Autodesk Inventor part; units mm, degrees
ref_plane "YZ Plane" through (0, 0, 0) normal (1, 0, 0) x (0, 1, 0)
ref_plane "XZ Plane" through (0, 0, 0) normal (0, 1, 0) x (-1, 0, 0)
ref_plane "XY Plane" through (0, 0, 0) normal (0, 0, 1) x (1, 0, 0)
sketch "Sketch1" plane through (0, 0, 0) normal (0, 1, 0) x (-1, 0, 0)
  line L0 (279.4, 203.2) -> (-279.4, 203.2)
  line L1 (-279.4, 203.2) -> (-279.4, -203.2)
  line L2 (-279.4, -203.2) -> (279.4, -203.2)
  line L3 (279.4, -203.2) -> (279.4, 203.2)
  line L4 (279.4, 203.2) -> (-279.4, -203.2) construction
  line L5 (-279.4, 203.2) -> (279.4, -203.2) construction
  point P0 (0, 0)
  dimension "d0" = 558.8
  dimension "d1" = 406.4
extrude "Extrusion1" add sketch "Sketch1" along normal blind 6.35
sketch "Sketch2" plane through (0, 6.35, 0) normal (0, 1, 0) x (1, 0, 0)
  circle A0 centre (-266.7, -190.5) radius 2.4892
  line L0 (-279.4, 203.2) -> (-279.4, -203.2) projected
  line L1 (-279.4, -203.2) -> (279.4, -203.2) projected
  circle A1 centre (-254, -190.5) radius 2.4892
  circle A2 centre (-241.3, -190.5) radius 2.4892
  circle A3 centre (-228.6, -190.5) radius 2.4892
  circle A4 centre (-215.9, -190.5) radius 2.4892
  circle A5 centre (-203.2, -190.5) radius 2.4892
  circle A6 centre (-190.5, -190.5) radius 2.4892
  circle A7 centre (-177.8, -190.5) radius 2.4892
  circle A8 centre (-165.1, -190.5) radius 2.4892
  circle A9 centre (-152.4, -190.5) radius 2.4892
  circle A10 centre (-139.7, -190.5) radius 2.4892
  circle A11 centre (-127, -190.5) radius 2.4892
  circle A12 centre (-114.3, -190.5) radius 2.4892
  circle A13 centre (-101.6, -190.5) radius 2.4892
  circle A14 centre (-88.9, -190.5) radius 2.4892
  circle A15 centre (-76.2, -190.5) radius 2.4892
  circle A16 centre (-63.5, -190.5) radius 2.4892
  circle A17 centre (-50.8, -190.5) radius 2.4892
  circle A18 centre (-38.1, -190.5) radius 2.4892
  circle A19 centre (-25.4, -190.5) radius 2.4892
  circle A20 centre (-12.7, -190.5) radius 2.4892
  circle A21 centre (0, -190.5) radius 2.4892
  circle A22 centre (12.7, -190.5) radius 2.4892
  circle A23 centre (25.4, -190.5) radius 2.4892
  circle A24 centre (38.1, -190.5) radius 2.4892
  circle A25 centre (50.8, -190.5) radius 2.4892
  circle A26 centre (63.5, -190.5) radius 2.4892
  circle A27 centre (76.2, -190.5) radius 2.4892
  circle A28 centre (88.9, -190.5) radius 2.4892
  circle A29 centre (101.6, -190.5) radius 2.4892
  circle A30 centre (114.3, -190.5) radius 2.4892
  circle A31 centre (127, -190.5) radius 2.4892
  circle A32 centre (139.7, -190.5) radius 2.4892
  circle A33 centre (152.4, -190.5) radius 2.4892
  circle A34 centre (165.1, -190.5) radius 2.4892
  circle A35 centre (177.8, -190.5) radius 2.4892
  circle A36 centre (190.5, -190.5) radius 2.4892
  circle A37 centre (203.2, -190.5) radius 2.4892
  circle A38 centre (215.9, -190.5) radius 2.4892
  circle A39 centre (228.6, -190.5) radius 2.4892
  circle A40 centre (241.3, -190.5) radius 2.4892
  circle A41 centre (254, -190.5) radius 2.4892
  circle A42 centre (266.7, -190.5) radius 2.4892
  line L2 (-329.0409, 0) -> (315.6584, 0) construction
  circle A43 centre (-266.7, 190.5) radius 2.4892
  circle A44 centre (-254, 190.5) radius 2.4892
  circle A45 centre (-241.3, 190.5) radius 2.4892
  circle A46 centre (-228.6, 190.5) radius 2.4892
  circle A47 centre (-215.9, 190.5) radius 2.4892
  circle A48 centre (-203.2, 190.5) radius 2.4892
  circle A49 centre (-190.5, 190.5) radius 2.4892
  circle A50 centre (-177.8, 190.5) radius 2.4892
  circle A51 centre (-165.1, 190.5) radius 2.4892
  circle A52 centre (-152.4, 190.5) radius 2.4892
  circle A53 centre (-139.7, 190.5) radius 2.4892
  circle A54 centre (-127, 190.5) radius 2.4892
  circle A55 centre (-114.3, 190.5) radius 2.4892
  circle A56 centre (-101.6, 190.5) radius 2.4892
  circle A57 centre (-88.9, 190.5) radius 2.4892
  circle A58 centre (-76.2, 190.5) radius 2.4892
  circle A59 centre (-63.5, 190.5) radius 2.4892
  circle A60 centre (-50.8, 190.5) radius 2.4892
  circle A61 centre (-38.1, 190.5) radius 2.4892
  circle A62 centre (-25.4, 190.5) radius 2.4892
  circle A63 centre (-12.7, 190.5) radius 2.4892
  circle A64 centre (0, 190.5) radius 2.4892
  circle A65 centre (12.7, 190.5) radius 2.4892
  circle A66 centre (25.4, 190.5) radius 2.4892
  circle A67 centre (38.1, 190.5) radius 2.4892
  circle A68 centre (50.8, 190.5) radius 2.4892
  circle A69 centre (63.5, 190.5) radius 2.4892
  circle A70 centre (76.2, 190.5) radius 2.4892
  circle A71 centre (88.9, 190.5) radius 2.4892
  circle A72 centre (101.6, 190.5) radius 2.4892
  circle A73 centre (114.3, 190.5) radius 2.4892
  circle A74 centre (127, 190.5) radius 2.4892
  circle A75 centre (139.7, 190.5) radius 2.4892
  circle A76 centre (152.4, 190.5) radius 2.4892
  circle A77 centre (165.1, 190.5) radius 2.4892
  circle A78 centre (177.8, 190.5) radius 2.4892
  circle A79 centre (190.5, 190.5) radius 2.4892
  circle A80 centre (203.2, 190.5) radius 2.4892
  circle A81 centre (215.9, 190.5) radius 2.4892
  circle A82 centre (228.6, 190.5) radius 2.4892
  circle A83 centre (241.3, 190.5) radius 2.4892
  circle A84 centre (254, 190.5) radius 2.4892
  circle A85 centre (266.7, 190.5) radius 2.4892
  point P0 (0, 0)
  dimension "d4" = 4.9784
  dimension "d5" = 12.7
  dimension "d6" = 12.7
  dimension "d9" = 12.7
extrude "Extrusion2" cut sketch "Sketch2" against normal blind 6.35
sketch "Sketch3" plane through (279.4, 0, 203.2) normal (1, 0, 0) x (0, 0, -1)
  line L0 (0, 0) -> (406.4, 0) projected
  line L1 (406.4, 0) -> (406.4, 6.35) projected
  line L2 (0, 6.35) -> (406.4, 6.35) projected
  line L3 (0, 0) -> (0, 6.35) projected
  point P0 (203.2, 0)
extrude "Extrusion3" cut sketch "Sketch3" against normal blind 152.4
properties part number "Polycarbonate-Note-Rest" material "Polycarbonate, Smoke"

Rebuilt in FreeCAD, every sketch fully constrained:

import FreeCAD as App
import Part
import Sketcher
Q = App.Units.Quantity


def add_polygon(sketch, points):
    """Adds a closed chain of lines whose ends are joined by coincident constraints."""
    first, n = sketch.GeometryCount, len(points)
    for a, b in zip(points, points[1:] + points[:1]):
        sketch.addGeometry(Part.LineSegment(App.Vector(*a, 0), App.Vector(*b, 0)), False)
    for i in range(n):
        sketch.addConstraint(Sketcher.Constraint("Coincident", first + i, 2, first + (i + 1) % n, 1))

doc = App.newDocument("Part")
body = doc.addObject("PartDesign::Body", "Body")

# Sketch on XZ plane
sketch1 = doc.addObject("Sketcher::SketchObject", "Sketch")
body.addObject(sketch1)
sketch1.AttachmentSupport = (doc.XZ_Plane, [""])
sketch1.MapMode = "FlatFace"
add_polygon(sketch1, [(-279.4, -203.2), (-279.4, 203.2), (279.4, 203.2), (279.4, -203.2)])  # lines 0-3
sketch1.addConstraint([
    Sketcher.Constraint("Vertical", 0),
    Sketcher.Constraint("Horizontal", 1),
    Sketcher.Constraint("Vertical", 2),
    Sketcher.Constraint("Horizontal", 3),
    Sketcher.Constraint("Symmetric", 0, 2, 2, 2, -1, 1),
    Sketcher.Constraint("DistanceX", 1, 1, 1, 2, Q("22 in")),
    Sketcher.Constraint("DistanceY", 0, 1, 0, 2, Q("16 in")),
])
pad1 = doc.addObject("PartDesign::Pad", "Pad")
body.addObject(pad1)
pad1.Profile = sketch1
pad1.Length = Q("0.25 in")
pad1.Reversed = True

# Sketch on XZ plane
sketch2 = doc.addObject("Sketcher::SketchObject", "Sketch001")
body.addObject(sketch2)
sketch2.AttachmentSupport = (doc.XZ_Plane, [""])
sketch2.MapMode = "FlatFace"
sketch2.AttachmentOffset = App.Placement(App.Vector(0, 0, -0.25 * 25.4), App.Rotation())
sketch2.addGeometry([
    Part.Circle(App.Vector(-266.7, 190.5, 0), App.Vector(0, 0, 1), 2.4892),  # 0
    Part.Circle(App.Vector(-254, 190.5, 0), App.Vector(0, 0, 1), 2.4892),  # 1
    Part.Circle(App.Vector(-241.3, 190.5, 0), App.Vector(0, 0, 1), 2.4892),  # 2
    Part.Circle(App.Vector(-228.6, 190.5, 0), App.Vector(0, 0, 1), 2.4892),  # 3
    Part.Circle(App.Vector(-215.9, 190.5, 0), App.Vector(0, 0, 1), 2.4892),  # 4
    Part.Circle(App.Vector(-203.2, 190.5, 0), App.Vector(0, 0, 1), 2.4892),  # 5
    Part.Circle(App.Vector(-190.5, 190.5, 0), App.Vector(0, 0, 1), 2.4892),  # 6
    Part.Circle(App.Vector(-177.8, 190.5, 0), App.Vector(0, 0, 1), 2.4892),  # 7
    Part.Circle(App.Vector(-165.1, 190.5, 0), App.Vector(0, 0, 1), 2.4892),  # 8
    Part.Circle(App.Vector(-152.4, 190.5, 0), App.Vector(0, 0, 1), 2.4892),  # 9
    Part.Circle(App.Vector(-139.7, 190.5, 0), App.Vector(0, 0, 1), 2.4892),  # 10
    Part.Circle(App.Vector(-127, 190.5, 0), App.Vector(0, 0, 1), 2.4892),  # 11
    Part.Circle(App.Vector(-114.3, 190.5, 0), App.Vector(0, 0, 1), 2.4892),  # 12
    Part.Circle(App.Vector(-101.6, 190.5, 0), App.Vector(0, 0, 1), 2.4892),  # 13
    Part.Circle(App.Vector(-88.9, 190.5, 0), App.Vector(0, 0, 1), 2.4892),  # 14
    Part.Circle(App.Vector(-76.2, 190.5, 0), App.Vector(0, 0, 1), 2.4892),  # 15
    Part.Circle(App.Vector(-63.5, 190.5, 0), App.Vector(0, 0, 1), 2.4892),  # 16
    Part.Circle(App.Vector(-50.8, 190.5, 0), App.Vector(0, 0, 1), 2.4892),  # 17
    Part.Circle(App.Vector(-38.1, 190.5, 0), App.Vector(0, 0, 1), 2.4892),  # 18
    Part.Circle(App.Vector(-25.4, 190.5, 0), App.Vector(0, 0, 1), 2.4892),  # 19
    Part.Circle(App.Vector(-12.7, 190.5, 0), App.Vector(0, 0, 1), 2.4892),  # 20
    Part.Circle(App.Vector(0, 190.5, 0), App.Vector(0, 0, 1), 2.4892),  # 21
    Part.Circle(App.Vector(12.7, 190.5, 0), App.Vector(0, 0, 1), 2.4892),  # 22
    Part.Circle(App.Vector(25.4, 190.5, 0), App.Vector(0, 0, 1), 2.4892),  # 23
    Part.Circle(App.Vector(38.1, 190.5, 0), App.Vector(0, 0, 1), 2.4892),  # 24
    Part.Circle(App.Vector(50.8, 190.5, 0), App.Vector(0, 0, 1), 2.4892),  # 25
    Part.Circle(App.Vector(63.5, 190.5, 0), App.Vector(0, 0, 1), 2.4892),  # 26
    Part.Circle(App.Vector(76.2, 190.5, 0), App.Vector(0, 0, 1), 2.4892),  # 27
    Part.Circle(App.Vector(88.9, 190.5, 0), App.Vector(0, 0, 1), 2.4892),  # 28
    Part.Circle(App.Vector(101.6, 190.5, 0), App.Vector(0, 0, 1), 2.4892),  # 29
    Part.Circle(App.Vector(114.3, 190.5, 0), App.Vector(0, 0, 1), 2.4892),  # 30
    Part.Circle(App.Vector(127, 190.5, 0), App.Vector(0, 0, 1), 2.4892),  # 31
    Part.Circle(App.Vector(139.7, 190.5, 0), App.Vector(0, 0, 1), 2.4892),  # 32
    Part.Circle(App.Vector(152.4, 190.5, 0), App.Vector(0, 0, 1), 2.4892),  # 33
    Part.Circle(App.Vector(165.1, 190.5, 0), App.Vector(0, 0, 1), 2.4892),  # 34
    Part.Circle(App.Vector(177.8, 190.5, 0), App.Vector(0, 0, 1), 2.4892),  # 35
    Part.Circle(App.Vector(190.5, 190.5, 0), App.Vector(0, 0, 1), 2.4892),  # 36
    Part.Circle(App.Vector(203.2, 190.5, 0), App.Vector(0, 0, 1), 2.4892),  # 37
    Part.Circle(App.Vector(215.9, 190.5, 0), App.Vector(0, 0, 1), 2.4892),  # 38
    Part.Circle(App.Vector(228.6, 190.5, 0), App.Vector(0, 0, 1), 2.4892),  # 39
    Part.Circle(App.Vector(241.3, 190.5, 0), App.Vector(0, 0, 1), 2.4892),  # 40
    Part.Circle(App.Vector(254, 190.5, 0), App.Vector(0, 0, 1), 2.4892),  # 41
    Part.Circle(App.Vector(266.7, 190.5, 0), App.Vector(0, 0, 1), 2.4892),  # 42
    Part.Circle(App.Vector(-266.7, -190.5, 0), App.Vector(0, 0, 1), 2.4892),  # 43
    Part.Circle(App.Vector(-254, -190.5, 0), App.Vector(0, 0, 1), 2.4892),  # 44
    Part.Circle(App.Vector(-241.3, -190.5, 0), App.Vector(0, 0, 1), 2.4892),  # 45
    Part.Circle(App.Vector(-228.6, -190.5, 0), App.Vector(0, 0, 1), 2.4892),  # 46
    Part.Circle(App.Vector(-215.9, -190.5, 0), App.Vector(0, 0, 1), 2.4892),  # 47
    Part.Circle(App.Vector(-203.2, -190.5, 0), App.Vector(0, 0, 1), 2.4892),  # 48
    Part.Circle(App.Vector(-190.5, -190.5, 0), App.Vector(0, 0, 1), 2.4892),  # 49
    Part.Circle(App.Vector(-177.8, -190.5, 0), App.Vector(0, 0, 1), 2.4892),  # 50
    Part.Circle(App.Vector(-165.1, -190.5, 0), App.Vector(0, 0, 1), 2.4892),  # 51
    Part.Circle(App.Vector(-152.4, -190.5, 0), App.Vector(0, 0, 1), 2.4892),  # 52
    Part.Circle(App.Vector(-139.7, -190.5, 0), App.Vector(0, 0, 1), 2.4892),  # 53
    Part.Circle(App.Vector(-127, -190.5, 0), App.Vector(0, 0, 1), 2.4892),  # 54
    Part.Circle(App.Vector(-114.3, -190.5, 0), App.Vector(0, 0, 1), 2.4892),  # 55
    Part.Circle(App.Vector(-101.6, -190.5, 0), App.Vector(0, 0, 1), 2.4892),  # 56
    Part.Circle(App.Vector(-88.9, -190.5, 0), App.Vector(0, 0, 1), 2.4892),  # 57
    Part.Circle(App.Vector(-76.2, -190.5, 0), App.Vector(0, 0, 1), 2.4892),  # 58
    Part.Circle(App.Vector(-63.5, -190.5, 0), App.Vector(0, 0, 1), 2.4892),  # 59
    Part.Circle(App.Vector(-50.8, -190.5, 0), App.Vector(0, 0, 1), 2.4892),  # 60
    Part.Circle(App.Vector(-38.1, -190.5, 0), App.Vector(0, 0, 1), 2.4892),  # 61
    Part.Circle(App.Vector(-25.4, -190.5, 0), App.Vector(0, 0, 1), 2.4892),  # 62
    Part.Circle(App.Vector(-12.7, -190.5, 0), App.Vector(0, 0, 1), 2.4892),  # 63
    Part.Circle(App.Vector(0, -190.5, 0), App.Vector(0, 0, 1), 2.4892),  # 64
    Part.Circle(App.Vector(12.7, -190.5, 0), App.Vector(0, 0, 1), 2.4892),  # 65
    Part.Circle(App.Vector(25.4, -190.5, 0), App.Vector(0, 0, 1), 2.4892),  # 66
    Part.Circle(App.Vector(38.1, -190.5, 0), App.Vector(0, 0, 1), 2.4892),  # 67
    Part.Circle(App.Vector(50.8, -190.5, 0), App.Vector(0, 0, 1), 2.4892),  # 68
    Part.Circle(App.Vector(63.5, -190.5, 0), App.Vector(0, 0, 1), 2.4892),  # 69
    Part.Circle(App.Vector(76.2, -190.5, 0), App.Vector(0, 0, 1), 2.4892),  # 70
    Part.Circle(App.Vector(88.9, -190.5, 0), App.Vector(0, 0, 1), 2.4892),  # 71
    Part.Circle(App.Vector(101.6, -190.5, 0), App.Vector(0, 0, 1), 2.4892),  # 72
    Part.Circle(App.Vector(114.3, -190.5, 0), App.Vector(0, 0, 1), 2.4892),  # 73
    Part.Circle(App.Vector(127, -190.5, 0), App.Vector(0, 0, 1), 2.4892),  # 74
    Part.Circle(App.Vector(139.7, -190.5, 0), App.Vector(0, 0, 1), 2.4892),  # 75
    Part.Circle(App.Vector(152.4, -190.5, 0), App.Vector(0, 0, 1), 2.4892),  # 76
    Part.Circle(App.Vector(165.1, -190.5, 0), App.Vector(0, 0, 1), 2.4892),  # 77
    Part.Circle(App.Vector(177.8, -190.5, 0), App.Vector(0, 0, 1), 2.4892),  # 78
    Part.Circle(App.Vector(190.5, -190.5, 0), App.Vector(0, 0, 1), 2.4892),  # 79
    Part.Circle(App.Vector(203.2, -190.5, 0), App.Vector(0, 0, 1), 2.4892),  # 80
    Part.Circle(App.Vector(215.9, -190.5, 0), App.Vector(0, 0, 1), 2.4892),  # 81
    Part.Circle(App.Vector(228.6, -190.5, 0), App.Vector(0, 0, 1), 2.4892),  # 82
    Part.Circle(App.Vector(241.3, -190.5, 0), App.Vector(0, 0, 1), 2.4892),  # 83
    Part.Circle(App.Vector(254, -190.5, 0), App.Vector(0, 0, 1), 2.4892),  # 84
    Part.Circle(App.Vector(266.7, -190.5, 0), App.Vector(0, 0, 1), 2.4892),  # 85
], False)
sketch2.addConstraint([
    Sketcher.Constraint("Equal", 0, 1),
    Sketcher.Constraint("Equal", 1, 2),
    Sketcher.Constraint("Equal", 2, 3),
    Sketcher.Constraint("Equal", 3, 4),
    Sketcher.Constraint("Equal", 4, 5),
    Sketcher.Constraint("Equal", 5, 6),
    Sketcher.Constraint("Equal", 6, 7),
    Sketcher.Constraint("Equal", 7, 8),
    Sketcher.Constraint("Equal", 8, 9),
    Sketcher.Constraint("Equal", 9, 10),
    Sketcher.Constraint("Equal", 10, 11),
    Sketcher.Constraint("Equal", 11, 12),
    Sketcher.Constraint("Equal", 12, 13),
    Sketcher.Constraint("Equal", 13, 14),
    Sketcher.Constraint("Equal", 14, 15),
    Sketcher.Constraint("Equal", 15, 16),
    Sketcher.Constraint("Equal", 16, 17),
    Sketcher.Constraint("Equal", 17, 18),
    Sketcher.Constraint("Equal", 18, 19),
    Sketcher.Constraint("Equal", 19, 20),
    Sketcher.Constraint("Equal", 20, 21),
    Sketcher.Constraint("Equal", 21, 22),
    Sketcher.Constraint("Equal", 22, 23),
    Sketcher.Constraint("Equal", 23, 24),
    Sketcher.Constraint("Equal", 24, 25),
    Sketcher.Constraint("Equal", 25, 26),
    Sketcher.Constraint("Equal", 26, 27),
    Sketcher.Constraint("Equal", 27, 28),
    Sketcher.Constraint("Equal", 28, 29),
    Sketcher.Constraint("Equal", 29, 30),
    Sketcher.Constraint("Equal", 30, 31),
    Sketcher.Constraint("Equal", 31, 32),
    Sketcher.Constraint("Equal", 32, 33),
    Sketcher.Constraint("Equal", 33, 34),
    Sketcher.Constraint("Equal", 34, 35),
    Sketcher.Constraint("Equal", 35, 36),
    Sketcher.Constraint("Equal", 36, 37),
    Sketcher.Constraint("Equal", 37, 38),
    Sketcher.Constraint("Equal", 38, 39),
    Sketcher.Constraint("Equal", 39, 40),
    Sketcher.Constraint("Equal", 40, 41),
    Sketcher.Constraint("Equal", 41, 42),
    Sketcher.Constraint("Equal", 42, 43),
    Sketcher.Constraint("Equal", 43, 44),
    Sketcher.Constraint("Equal", 44, 45),
    Sketcher.Constraint("Equal", 45, 46),
    Sketcher.Constraint("Equal", 46, 47),
    Sketcher.Constraint("Equal", 47, 48),
    Sketcher.Constraint("Equal", 48, 49),
    Sketcher.Constraint("Equal", 49, 50),
    Sketcher.Constraint("Equal", 50, 51),
    Sketcher.Constraint("Equal", 51, 52),
    Sketcher.Constraint("Equal", 52, 53),
    Sketcher.Constraint("Equal", 53, 54),
    Sketcher.Constraint("Equal", 54, 55),
    Sketcher.Constraint("Equal", 55, 56),
    Sketcher.Constraint("Equal", 56, 57),
    Sketcher.Constraint("Equal", 57, 58),
    Sketcher.Constraint("Equal", 58, 59),
    Sketcher.Constraint("Equal", 59, 60),
    Sketcher.Constraint("Equal", 60, 61),
    Sketcher.Constraint("Equal", 61, 62),
    Sketcher.Constraint("Equal", 62, 63),
    Sketcher.Constraint("Equal", 63, 64),
    Sketcher.Constraint("Equal", 64, 65),
    Sketcher.Constraint("Equal", 65, 66),
    Sketcher.Constraint("Equal", 66, 67),
    Sketcher.Constraint("Equal", 67, 68),
    Sketcher.Constraint("Equal", 68, 69),
    Sketcher.Constraint("Equal", 69, 70),
    Sketcher.Constraint("Equal", 70, 71),
    Sketcher.Constraint("Equal", 71, 72),
    Sketcher.Constraint("Equal", 72, 73),
    Sketcher.Constraint("Equal", 73, 74),
    Sketcher.Constraint("Equal", 74, 75),
    Sketcher.Constraint("Equal", 75, 76),
    Sketcher.Constraint("Equal", 76, 77),
    Sketcher.Constraint("Equal", 77, 78),
    Sketcher.Constraint("Equal", 78, 79),
    Sketcher.Constraint("Equal", 79, 80),
    Sketcher.Constraint("Equal", 80, 81),
    Sketcher.Constraint("Equal", 81, 82),
    Sketcher.Constraint("Equal", 82, 83),
    Sketcher.Constraint("Equal", 83, 84),
    Sketcher.Constraint("Equal", 84, 85),
    Sketcher.Constraint("Symmetric", 42, 3, 43, 3, -1, 1),
    Sketcher.Constraint("Symmetric", 41, 3, 44, 3, -1, 1),
    Sketcher.Constraint("Symmetric", 40, 3, 45, 3, -1, 1),
    Sketcher.Constraint("Symmetric", 39, 3, 46, 3, -1, 1),
    Sketcher.Constraint("Symmetric", 38, 3, 47, 3, -1, 1),
    Sketcher.Constraint("Symmetric", 37, 3, 48, 3, -1, 1),
    Sketcher.Constraint("Symmetric", 36, 3, 49, 3, -1, 1),
    Sketcher.Constraint("Symmetric", 35, 3, 50, 3, -1, 1),
    Sketcher.Constraint("Symmetric", 34, 3, 51, 3, -1, 1),
    Sketcher.Constraint("Symmetric", 33, 3, 52, 3, -1, 1),
    Sketcher.Constraint("Symmetric", 32, 3, 53, 3, -1, 1),
    Sketcher.Constraint("Symmetric", 31, 3, 54, 3, -1, 1),
    Sketcher.Constraint("Symmetric", 30, 3, 55, 3, -1, 1),
    Sketcher.Constraint("Symmetric", 29, 3, 56, 3, -1, 1),
    Sketcher.Constraint("Symmetric", 28, 3, 57, 3, -1, 1),
    Sketcher.Constraint("Symmetric", 27, 3, 58, 3, -1, 1),
    Sketcher.Constraint("Symmetric", 26, 3, 59, 3, -1, 1),
    Sketcher.Constraint("Symmetric", 25, 3, 60, 3, -1, 1),
    Sketcher.Constraint("Symmetric", 24, 3, 61, 3, -1, 1),
    Sketcher.Constraint("Symmetric", 23, 3, 62, 3, -1, 1),
    Sketcher.Constraint("Symmetric", 22, 3, 63, 3, -1, 1),
    Sketcher.Constraint("Symmetric", 21, 3, 64, 3, -1, 1),
    Sketcher.Constraint("Symmetric", 20, 3, 65, 3, -1, 1),
    Sketcher.Constraint("Symmetric", 19, 3, 66, 3, -1, 1),
    Sketcher.Constraint("Symmetric", 18, 3, 67, 3, -1, 1),
    Sketcher.Constraint("Symmetric", 17, 3, 68, 3, -1, 1),
    Sketcher.Constraint("Symmetric", 16, 3, 69, 3, -1, 1),
    Sketcher.Constraint("Symmetric", 15, 3, 70, 3, -1, 1),
    Sketcher.Constraint("Symmetric", 14, 3, 71, 3, -1, 1),
    Sketcher.Constraint("Symmetric", 13, 3, 72, 3, -1, 1),
    Sketcher.Constraint("Symmetric", 12, 3, 73, 3, -1, 1),
    Sketcher.Constraint("Symmetric", 11, 3, 74, 3, -1, 1),
    Sketcher.Constraint("Symmetric", 10, 3, 75, 3, -1, 1),
    Sketcher.Constraint("Symmetric", 9, 3, 76, 3, -1, 1),
    Sketcher.Constraint("Symmetric", 8, 3, 77, 3, -1, 1),
    Sketcher.Constraint("Symmetric", 7, 3, 78, 3, -1, 1),
    Sketcher.Constraint("Symmetric", 6, 3, 79, 3, -1, 1),
    Sketcher.Constraint("Symmetric", 5, 3, 80, 3, -1, 1),
    Sketcher.Constraint("Symmetric", 4, 3, 81, 3, -1, 1),
    Sketcher.Constraint("Symmetric", 3, 3, 82, 3, -1, 1),
    Sketcher.Constraint("Symmetric", 2, 3, 83, 3, -1, 1),
    Sketcher.Constraint("Symmetric", 1, 3, 84, 3, -1, 1),
    Sketcher.Constraint("Symmetric", 0, 3, 85, 3, -1, 1),
    Sketcher.Constraint("Symmetric", 20, 3, 22, 3, -2),
    Sketcher.Constraint("Symmetric", 19, 3, 23, 3, -2),
    Sketcher.Constraint("Symmetric", 18, 3, 24, 3, -2),
    Sketcher.Constraint("Symmetric", 17, 3, 25, 3, -2),
    Sketcher.Constraint("Symmetric", 16, 3, 26, 3, -2),
    Sketcher.Constraint("Symmetric", 15, 3, 27, 3, -2),
    Sketcher.Constraint("Symmetric", 14, 3, 28, 3, -2),
    Sketcher.Constraint("Symmetric", 13, 3, 29, 3, -2),
    Sketcher.Constraint("Symmetric", 12, 3, 30, 3, -2),
    Sketcher.Constraint("Symmetric", 11, 3, 31, 3, -2),
    Sketcher.Constraint("Symmetric", 10, 3, 32, 3, -2),
    Sketcher.Constraint("Symmetric", 9, 3, 33, 3, -2),
    Sketcher.Constraint("Symmetric", 8, 3, 34, 3, -2),
    Sketcher.Constraint("Symmetric", 7, 3, 35, 3, -2),
    Sketcher.Constraint("Symmetric", 6, 3, 36, 3, -2),
    Sketcher.Constraint("Symmetric", 5, 3, 37, 3, -2),
    Sketcher.Constraint("Symmetric", 4, 3, 38, 3, -2),
    Sketcher.Constraint("Symmetric", 3, 3, 39, 3, -2),
    Sketcher.Constraint("Symmetric", 2, 3, 40, 3, -2),
    Sketcher.Constraint("Symmetric", 1, 3, 41, 3, -2),
    Sketcher.Constraint("Symmetric", 0, 3, 42, 3, -2),
    Sketcher.Constraint("PointOnObject", 21, 3, -2),
    Sketcher.Constraint("Horizontal", 0, 3, 1, 3),
    Sketcher.Constraint("Horizontal", 1, 3, 2, 3),
    Sketcher.Constraint("Horizontal", 2, 3, 3, 3),
    Sketcher.Constraint("Horizontal", 3, 3, 4, 3),
    Sketcher.Constraint("Horizontal", 4, 3, 5, 3),
    Sketcher.Constraint("Horizontal", 5, 3, 6, 3),
    Sketcher.Constraint("Horizontal", 6, 3, 7, 3),
    Sketcher.Constraint("Horizontal", 7, 3, 8, 3),
    Sketcher.Constraint("Horizontal", 8, 3, 9, 3),
    Sketcher.Constraint("Horizontal", 9, 3, 10, 3),
    Sketcher.Constraint("Horizontal", 10, 3, 11, 3),
    Sketcher.Constraint("Horizontal", 11, 3, 12, 3),
    Sketcher.Constraint("Horizontal", 12, 3, 13, 3),
    Sketcher.Constraint("Horizontal", 13, 3, 14, 3),
    Sketcher.Constraint("Horizontal", 14, 3, 15, 3),
    Sketcher.Constraint("Horizontal", 15, 3, 16, 3),
    Sketcher.Constraint("Horizontal", 16, 3, 17, 3),
    Sketcher.Constraint("Horizontal", 17, 3, 18, 3),
    Sketcher.Constraint("Horizontal", 18, 3, 19, 3),
    Sketcher.Constraint("Horizontal", 19, 3, 20, 3),
    Sketcher.Constraint("Horizontal", 20, 3, 21, 3),
    Sketcher.Constraint("Diameter", 0, Q("0.196 in")),
    Sketcher.Constraint("DistanceX", 20, 3, -1, 1, Q("0.5 in")),
    Sketcher.Constraint("DistanceX", 1, 3, -1, 1, Q("10 in")),
    Sketcher.Constraint("DistanceX", 3, 3, -1, 1, Q("9 in")),
    Sketcher.Constraint("DistanceX", 5, 3, -1, 1, Q("8 in")),
    Sketcher.Constraint("DistanceX", 7, 3, -1, 1, Q("7 in")),
    Sketcher.Constraint("DistanceX", 9, 3, -1, 1, Q("6 in")),
    Sketcher.Constraint("DistanceX", 11, 3, -1, 1, Q("5 in")),
    Sketcher.Constraint("DistanceX", 13, 3, -1, 1, Q("4 in")),
    Sketcher.Constraint("DistanceX", 15, 3, -1, 1, Q("3 in")),
    Sketcher.Constraint("DistanceX", 17, 3, -1, 1, Q("2 in")),
    Sketcher.Constraint("DistanceX", 19, 3, -1, 1, Q("1 in")),
    Sketcher.Constraint("DistanceX", 0, 3, -1, 1, Q("10.5 in")),
    Sketcher.Constraint("DistanceY", -1, 1, 0, 3, Q("7.5 in")),
    Sketcher.Constraint("DistanceX", 2, 3, -1, 1, Q("9.5 in")),
    Sketcher.Constraint("DistanceX", 4, 3, -1, 1, Q("8.5 in")),
    Sketcher.Constraint("DistanceX", 6, 3, -1, 1, Q("7.5 in")),
    Sketcher.Constraint("DistanceX", 8, 3, -1, 1, Q("6.5 in")),
    Sketcher.Constraint("DistanceX", 10, 3, -1, 1, Q("5.5 in")),
    Sketcher.Constraint("DistanceX", 12, 3, -1, 1, Q("4.5 in")),
    Sketcher.Constraint("DistanceX", 14, 3, -1, 1, Q("3.5 in")),
    Sketcher.Constraint("DistanceX", 16, 3, -1, 1, Q("2.5 in")),
    Sketcher.Constraint("DistanceX", 18, 3, -1, 1, Q("1.5 in")),
])
pocket1 = doc.addObject("PartDesign::Pocket", "Pocket")
body.addObject(pocket1)
pocket1.Profile = sketch2
pocket1.Length = Q("0.25 in")
pocket1.Reversed = True

# Sketch on YZ plane
sketch3 = doc.addObject("Sketcher::SketchObject", "Sketch002")
body.addObject(sketch3)
sketch3.AttachmentSupport = (doc.YZ_Plane, [""])
sketch3.MapMode = "FlatFace"
sketch3.AttachmentOffset = App.Placement(App.Vector(0, 0, 11 * 25.4), App.Rotation())
add_polygon(sketch3, [(6.35, 203.2), (0, 203.2), (0, -203.2), (6.35, -203.2)])  # lines 0-3
sketch3.addConstraint([
    Sketcher.Constraint("Horizontal", 0),
    Sketcher.Constraint("Vertical", 1),
    Sketcher.Constraint("Horizontal", 2),
    Sketcher.Constraint("Vertical", 3),
    Sketcher.Constraint("Symmetric", 0, 2, 1, 2, -1, 1),
    Sketcher.Constraint("DistanceY", 1, 2, 1, 1, Q("16 in")),
    Sketcher.Constraint("DistanceX", 0, 2, 0, 1, Q("0.25 in")),
])
pocket2 = doc.addObject("PartDesign::Pocket", "Pocket001")
body.addObject(pocket2)
pocket2.Profile = sketch3
pocket2.Length = Q("6 in")

doc.recompute()
